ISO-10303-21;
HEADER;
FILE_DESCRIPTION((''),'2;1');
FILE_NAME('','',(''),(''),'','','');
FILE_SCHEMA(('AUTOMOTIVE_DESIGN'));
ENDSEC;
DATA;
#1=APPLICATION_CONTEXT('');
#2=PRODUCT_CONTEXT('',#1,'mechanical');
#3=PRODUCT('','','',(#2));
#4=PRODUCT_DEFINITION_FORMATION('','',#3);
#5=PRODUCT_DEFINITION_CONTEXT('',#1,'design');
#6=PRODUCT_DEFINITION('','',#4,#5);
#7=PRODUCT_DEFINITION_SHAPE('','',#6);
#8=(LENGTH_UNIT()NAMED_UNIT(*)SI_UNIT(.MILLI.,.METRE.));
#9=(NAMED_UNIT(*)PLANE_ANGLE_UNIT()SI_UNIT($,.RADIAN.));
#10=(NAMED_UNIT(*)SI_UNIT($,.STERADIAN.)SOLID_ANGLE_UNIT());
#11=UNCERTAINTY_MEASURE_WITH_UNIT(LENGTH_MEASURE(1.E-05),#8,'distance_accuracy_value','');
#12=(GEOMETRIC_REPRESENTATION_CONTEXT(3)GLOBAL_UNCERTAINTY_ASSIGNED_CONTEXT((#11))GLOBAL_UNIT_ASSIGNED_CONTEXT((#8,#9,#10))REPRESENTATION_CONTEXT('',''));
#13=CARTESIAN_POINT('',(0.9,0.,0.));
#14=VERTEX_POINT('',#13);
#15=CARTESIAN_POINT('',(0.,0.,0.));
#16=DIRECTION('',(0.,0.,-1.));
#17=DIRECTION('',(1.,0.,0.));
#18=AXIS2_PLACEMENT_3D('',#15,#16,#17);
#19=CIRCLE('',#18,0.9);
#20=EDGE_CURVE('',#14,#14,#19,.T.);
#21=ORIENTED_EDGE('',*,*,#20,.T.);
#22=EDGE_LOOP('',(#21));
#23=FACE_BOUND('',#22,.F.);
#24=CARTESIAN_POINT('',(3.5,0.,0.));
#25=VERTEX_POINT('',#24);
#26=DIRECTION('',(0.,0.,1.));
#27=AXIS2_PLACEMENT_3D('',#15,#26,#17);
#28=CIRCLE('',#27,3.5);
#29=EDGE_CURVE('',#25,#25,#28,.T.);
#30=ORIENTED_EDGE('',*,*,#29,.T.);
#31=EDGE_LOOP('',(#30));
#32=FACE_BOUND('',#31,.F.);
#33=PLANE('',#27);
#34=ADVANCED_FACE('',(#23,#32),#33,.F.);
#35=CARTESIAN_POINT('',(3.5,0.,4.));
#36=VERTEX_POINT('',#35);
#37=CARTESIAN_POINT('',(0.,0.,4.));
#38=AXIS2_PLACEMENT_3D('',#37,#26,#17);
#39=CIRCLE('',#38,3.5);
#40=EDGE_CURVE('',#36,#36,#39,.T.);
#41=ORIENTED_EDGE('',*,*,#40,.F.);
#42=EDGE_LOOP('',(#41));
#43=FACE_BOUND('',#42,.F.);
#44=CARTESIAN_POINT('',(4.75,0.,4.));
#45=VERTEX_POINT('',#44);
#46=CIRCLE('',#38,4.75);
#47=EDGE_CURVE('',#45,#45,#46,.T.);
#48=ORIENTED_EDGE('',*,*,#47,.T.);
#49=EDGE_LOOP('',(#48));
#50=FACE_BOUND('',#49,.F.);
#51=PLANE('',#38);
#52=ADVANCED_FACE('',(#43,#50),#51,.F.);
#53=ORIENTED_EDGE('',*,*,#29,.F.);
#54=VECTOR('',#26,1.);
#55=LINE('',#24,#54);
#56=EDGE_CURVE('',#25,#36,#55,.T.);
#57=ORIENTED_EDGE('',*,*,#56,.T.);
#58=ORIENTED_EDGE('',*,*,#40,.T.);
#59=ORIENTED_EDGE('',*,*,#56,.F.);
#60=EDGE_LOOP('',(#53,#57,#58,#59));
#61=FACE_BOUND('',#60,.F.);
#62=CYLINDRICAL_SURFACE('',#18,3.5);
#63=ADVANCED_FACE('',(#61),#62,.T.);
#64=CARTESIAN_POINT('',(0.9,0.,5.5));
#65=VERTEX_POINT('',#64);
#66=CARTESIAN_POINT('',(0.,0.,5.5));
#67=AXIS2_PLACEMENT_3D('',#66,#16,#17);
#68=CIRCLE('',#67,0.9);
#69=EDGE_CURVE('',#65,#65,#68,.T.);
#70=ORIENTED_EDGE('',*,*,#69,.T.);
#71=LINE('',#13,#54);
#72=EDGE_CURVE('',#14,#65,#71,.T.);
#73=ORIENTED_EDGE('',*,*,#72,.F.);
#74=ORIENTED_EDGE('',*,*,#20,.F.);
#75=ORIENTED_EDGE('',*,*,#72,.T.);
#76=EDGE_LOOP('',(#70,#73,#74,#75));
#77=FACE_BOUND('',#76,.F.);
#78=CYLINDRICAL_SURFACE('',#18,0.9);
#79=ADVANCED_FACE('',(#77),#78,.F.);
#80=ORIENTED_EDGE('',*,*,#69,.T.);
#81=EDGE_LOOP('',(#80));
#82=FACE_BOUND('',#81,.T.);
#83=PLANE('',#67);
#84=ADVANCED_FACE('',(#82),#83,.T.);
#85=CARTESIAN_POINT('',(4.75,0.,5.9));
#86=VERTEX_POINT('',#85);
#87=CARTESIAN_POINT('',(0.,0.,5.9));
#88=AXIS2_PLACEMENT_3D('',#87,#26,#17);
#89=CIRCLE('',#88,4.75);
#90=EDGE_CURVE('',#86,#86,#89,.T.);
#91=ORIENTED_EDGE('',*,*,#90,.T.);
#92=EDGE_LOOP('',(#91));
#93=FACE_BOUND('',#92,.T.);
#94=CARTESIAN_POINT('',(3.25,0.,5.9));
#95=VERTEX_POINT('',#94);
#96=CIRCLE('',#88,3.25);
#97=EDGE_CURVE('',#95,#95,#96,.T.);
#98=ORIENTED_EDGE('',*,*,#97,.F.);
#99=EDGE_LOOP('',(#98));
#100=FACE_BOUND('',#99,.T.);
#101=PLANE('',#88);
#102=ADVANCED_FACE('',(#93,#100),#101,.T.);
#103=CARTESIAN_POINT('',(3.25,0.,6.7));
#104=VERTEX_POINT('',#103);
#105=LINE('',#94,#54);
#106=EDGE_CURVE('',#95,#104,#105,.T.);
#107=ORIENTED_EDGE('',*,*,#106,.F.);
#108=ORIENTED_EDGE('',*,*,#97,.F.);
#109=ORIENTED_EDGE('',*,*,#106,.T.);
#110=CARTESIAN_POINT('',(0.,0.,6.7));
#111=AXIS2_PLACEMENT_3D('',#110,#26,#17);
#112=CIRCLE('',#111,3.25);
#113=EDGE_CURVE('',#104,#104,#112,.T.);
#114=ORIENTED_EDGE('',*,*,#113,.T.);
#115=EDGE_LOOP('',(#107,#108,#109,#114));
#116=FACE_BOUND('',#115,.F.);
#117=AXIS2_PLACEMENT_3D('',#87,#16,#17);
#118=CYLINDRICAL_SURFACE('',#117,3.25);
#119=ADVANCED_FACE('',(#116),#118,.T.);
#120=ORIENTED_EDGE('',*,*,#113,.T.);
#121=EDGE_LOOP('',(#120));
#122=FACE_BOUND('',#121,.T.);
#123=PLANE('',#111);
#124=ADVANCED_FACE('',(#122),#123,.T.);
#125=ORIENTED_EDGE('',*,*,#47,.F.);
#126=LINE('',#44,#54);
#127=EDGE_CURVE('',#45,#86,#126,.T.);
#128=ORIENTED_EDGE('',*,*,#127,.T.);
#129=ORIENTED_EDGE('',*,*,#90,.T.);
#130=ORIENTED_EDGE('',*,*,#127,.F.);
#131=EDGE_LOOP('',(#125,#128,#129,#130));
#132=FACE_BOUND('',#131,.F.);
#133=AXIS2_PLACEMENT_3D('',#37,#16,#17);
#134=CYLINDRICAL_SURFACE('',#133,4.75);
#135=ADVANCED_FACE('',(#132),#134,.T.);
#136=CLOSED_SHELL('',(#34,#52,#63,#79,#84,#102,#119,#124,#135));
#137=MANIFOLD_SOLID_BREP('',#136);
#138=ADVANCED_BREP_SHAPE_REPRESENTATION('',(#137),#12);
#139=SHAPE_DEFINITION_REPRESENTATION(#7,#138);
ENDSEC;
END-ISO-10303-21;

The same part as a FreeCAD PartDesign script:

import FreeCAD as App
import Part
import Sketcher

V = App.Vector
Q = App.Units.Quantity

doc = App.newDocument("Part")
body = doc.addObject("PartDesign::Body", "Body")

# Sketch on XY plane
sketch1 = doc.addObject("Sketcher::SketchObject", "Sketch")
body.addObject(sketch1)
sketch1.AttachmentSupport = (doc.XY_Plane, [""])
sketch1.MapMode = "FlatFace"
sketch1.addGeometry(Part.Circle(V(0, 0, 0), V(0, 0, 1), 3.5), False)
sketch1.addConstraint([
    Sketcher.Constraint("Coincident", 0, 3, -1, 1),
    Sketcher.Constraint("Diameter", 0, Q("7 mm")),
])
pad1 = doc.addObject("PartDesign::Pad", "Pad")
body.addObject(pad1)
pad1.Profile = sketch1
pad1.Length = 4

# Sketch on XY plane
sketch2 = doc.addObject("Sketcher::SketchObject", "Sketch001")
body.addObject(sketch2)
sketch2.AttachmentSupport = (doc.XY_Plane, [""])
sketch2.MapMode = "FlatFace"
sketch2.AttachmentOffset = App.Placement(V(0, 0, 4), App.Rotation())
sketch2.addGeometry(Part.Circle(V(0, 0, 0), V(0, 0, 1), 4.8), False)
sketch2.addConstraint([
    Sketcher.Constraint("Coincident", 0, 3, -1, 1),
    Sketcher.Constraint("Diameter", 0, Q("9.5 mm")),
])
pad2 = doc.addObject("PartDesign::Pad", "Pad001")
body.addObject(pad2)
pad2.Profile = sketch2
pad2.Length = 1.9

# Sketch on XY plane
sketch3 = doc.addObject("Sketcher::SketchObject", "Sketch002")
body.addObject(sketch3)
sketch3.AttachmentSupport = (doc.XY_Plane, [""])
sketch3.MapMode = "FlatFace"
sketch3.AttachmentOffset = App.Placement(V(0, 0, 5.9), App.Rotation())
sketch3.addGeometry(Part.Circle(V(0, 0, 0), V(0, 0, 1), 3.2), False)
sketch3.addConstraint([
    Sketcher.Constraint("Coincident", 0, 3, -1, 1),
    Sketcher.Constraint("Diameter", 0, Q("6.5 mm")),
])
pad3 = doc.addObject("PartDesign::Pad", "Pad002")
body.addObject(pad3)
pad3.Profile = sketch3
pad3.Length = 0.8

# Sketch on XY plane
sketch4 = doc.addObject("Sketcher::SketchObject", "Sketch003")
body.addObject(sketch4)
sketch4.AttachmentSupport = (doc.XY_Plane, [""])
sketch4.MapMode = "FlatFace"
sketch4.addGeometry(Part.Circle(V(0, 0, 0), V(0, 0, 1), 0.9), False)
sketch4.addConstraint([
    Sketcher.Constraint("Coincident", 0, 3, -1, 1),
    Sketcher.Constraint("Diameter", 0, Q("1.8 mm")),
])
pocket1 = doc.addObject("PartDesign::Pocket", "Pocket")
body.addObject(pocket1)
pocket1.Profile = sketch4
pocket1.Length = 5.5
pocket1.Reversed = True

doc.recompute()
